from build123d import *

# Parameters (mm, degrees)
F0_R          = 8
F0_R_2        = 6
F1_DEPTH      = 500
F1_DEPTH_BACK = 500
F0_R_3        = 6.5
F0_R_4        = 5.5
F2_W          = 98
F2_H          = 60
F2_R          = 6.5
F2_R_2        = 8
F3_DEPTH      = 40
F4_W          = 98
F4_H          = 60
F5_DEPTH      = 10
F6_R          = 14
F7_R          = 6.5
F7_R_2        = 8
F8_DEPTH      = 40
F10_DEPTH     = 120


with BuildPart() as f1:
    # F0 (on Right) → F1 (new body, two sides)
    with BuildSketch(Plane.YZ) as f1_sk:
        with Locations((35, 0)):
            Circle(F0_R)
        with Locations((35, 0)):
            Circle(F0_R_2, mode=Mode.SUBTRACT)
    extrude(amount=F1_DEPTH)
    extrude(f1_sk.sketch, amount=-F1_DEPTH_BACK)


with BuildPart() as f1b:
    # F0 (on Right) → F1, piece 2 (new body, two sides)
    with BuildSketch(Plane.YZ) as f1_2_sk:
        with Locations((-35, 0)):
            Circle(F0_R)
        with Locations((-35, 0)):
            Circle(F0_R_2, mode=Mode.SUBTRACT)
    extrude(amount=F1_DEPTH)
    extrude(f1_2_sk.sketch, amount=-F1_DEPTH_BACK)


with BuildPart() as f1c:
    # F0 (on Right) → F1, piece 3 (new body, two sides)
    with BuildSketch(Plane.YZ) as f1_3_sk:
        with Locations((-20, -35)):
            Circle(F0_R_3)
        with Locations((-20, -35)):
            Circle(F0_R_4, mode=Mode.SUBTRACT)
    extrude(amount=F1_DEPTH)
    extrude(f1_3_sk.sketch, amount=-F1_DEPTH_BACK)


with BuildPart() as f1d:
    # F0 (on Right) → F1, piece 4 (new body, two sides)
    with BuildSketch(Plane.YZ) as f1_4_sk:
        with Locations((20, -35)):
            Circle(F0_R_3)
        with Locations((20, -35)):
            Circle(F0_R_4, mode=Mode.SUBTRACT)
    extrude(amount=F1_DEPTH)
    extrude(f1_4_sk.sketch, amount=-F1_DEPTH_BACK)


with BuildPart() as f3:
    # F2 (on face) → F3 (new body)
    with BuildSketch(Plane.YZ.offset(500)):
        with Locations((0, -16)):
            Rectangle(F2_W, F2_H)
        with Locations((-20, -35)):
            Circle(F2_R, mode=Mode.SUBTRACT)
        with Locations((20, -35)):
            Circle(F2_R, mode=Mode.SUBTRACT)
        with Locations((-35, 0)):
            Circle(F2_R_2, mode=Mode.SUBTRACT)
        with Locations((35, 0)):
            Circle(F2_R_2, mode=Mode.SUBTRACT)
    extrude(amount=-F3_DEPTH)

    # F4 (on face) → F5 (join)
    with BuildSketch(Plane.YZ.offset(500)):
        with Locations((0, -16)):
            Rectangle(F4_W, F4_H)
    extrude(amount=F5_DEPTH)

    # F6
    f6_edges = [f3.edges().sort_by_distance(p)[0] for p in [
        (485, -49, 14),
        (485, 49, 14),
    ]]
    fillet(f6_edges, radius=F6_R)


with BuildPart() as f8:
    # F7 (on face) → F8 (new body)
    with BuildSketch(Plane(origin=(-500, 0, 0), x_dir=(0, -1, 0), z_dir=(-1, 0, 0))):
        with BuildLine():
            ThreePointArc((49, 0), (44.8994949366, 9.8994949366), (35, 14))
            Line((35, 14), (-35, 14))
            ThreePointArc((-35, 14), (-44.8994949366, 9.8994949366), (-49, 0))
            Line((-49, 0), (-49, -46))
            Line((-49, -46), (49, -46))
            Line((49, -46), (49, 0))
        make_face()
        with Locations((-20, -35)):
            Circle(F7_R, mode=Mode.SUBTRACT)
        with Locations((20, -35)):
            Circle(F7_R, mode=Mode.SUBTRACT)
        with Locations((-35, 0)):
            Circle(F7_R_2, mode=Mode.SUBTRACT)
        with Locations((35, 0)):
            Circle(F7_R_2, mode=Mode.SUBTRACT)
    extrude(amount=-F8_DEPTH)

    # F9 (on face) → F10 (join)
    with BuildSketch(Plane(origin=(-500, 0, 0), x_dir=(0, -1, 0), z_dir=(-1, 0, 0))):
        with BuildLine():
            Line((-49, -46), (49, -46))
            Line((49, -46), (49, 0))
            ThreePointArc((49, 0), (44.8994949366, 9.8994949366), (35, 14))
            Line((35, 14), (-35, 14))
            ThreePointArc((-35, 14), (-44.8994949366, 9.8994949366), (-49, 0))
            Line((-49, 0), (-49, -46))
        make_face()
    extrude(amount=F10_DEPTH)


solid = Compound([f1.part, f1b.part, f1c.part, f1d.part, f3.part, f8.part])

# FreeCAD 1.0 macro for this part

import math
import FreeCAD as App
import Part
import Sketcher
from FreeCAD import Vector
Q = App.Units.Quantity


def edges_at(feature, points):
    """Names of the edges that pass closest to the given points."""
    edges = feature.Shape.Edges
    near = lambda p: min(range(len(edges)), key=lambda i: edges[i].distToShape(Part.Vertex(*p))[0])
    return sorted({f"Edge{near(p) + 1}" for p in points})

doc = App.newDocument("Part")
body = doc.addObject("PartDesign::Body", "Body")

# Sketch on YZ plane
sketch1 = body.newObject("Sketcher::SketchObject", "Sketch")
sketch1.AttachmentSupport = (doc.getObject("YZ_Plane"), [""])
sketch1.MapMode = "FlatFace"
sketch1.addGeometry([
    Part.Circle(Vector(35, 0, 0), Vector(0, 0, 1), 8),
    Part.Circle(Vector(35, 0, 0), Vector(0, 0, 1), 6),
], False)
sketch1.addConstraint([
    Sketcher.Constraint("Coincident", 1, 3, 0, 3),
    Sketcher.Constraint("PointOnObject", 0, 3, -1),
    Sketcher.Constraint("Diameter", 0, Q("16 mm")),
    Sketcher.Constraint("Diameter", 1, Q("12 mm")),
    Sketcher.Constraint("DistanceX", -1, 1, 0, 3, Q("35 mm")),
])
pad1 = body.newObject("PartDesign::Pad", "Pad")
pad1.Profile = sketch1
pad1.Type = "TwoLengths"
pad1.Length = 500
pad1.Length2 = 500
body2 = doc.addObject("PartDesign::Body", "Body001")

# Sketch on YZ plane
sketch2 = body2.newObject("Sketcher::SketchObject", "Sketch001")
sketch2.AttachmentSupport = (doc.getObject("YZ_Plane001"), [""])
sketch2.MapMode = "FlatFace"
sketch2.addGeometry([
    Part.Circle(Vector(-35, 0, 0), Vector(0, 0, 1), 8),
    Part.Circle(Vector(-35, 0, 0), Vector(0, 0, 1), 6),
], False)
sketch2.addConstraint([
    Sketcher.Constraint("Coincident", 1, 3, 0, 3),
    Sketcher.Constraint("PointOnObject", 0, 3, -1),
    Sketcher.Constraint("Diameter", 0, Q("16 mm")),
    Sketcher.Constraint("Diameter", 1, Q("12 mm")),
    Sketcher.Constraint("DistanceX", 0, 3, -1, 1, Q("35 mm")),
])
pad2 = body2.newObject("PartDesign::Pad", "Pad001")
pad2.Profile = sketch2
pad2.Type = "TwoLengths"
pad2.Length = 500
pad2.Length2 = 500
body3 = doc.addObject("PartDesign::Body", "Body002")

# Sketch on YZ plane
sketch3 = body3.newObject("Sketcher::SketchObject", "Sketch002")
sketch3.AttachmentSupport = (doc.getObject("YZ_Plane002"), [""])
sketch3.MapMode = "FlatFace"
sketch3.addGeometry([
    Part.Circle(Vector(-20, -35, 0), Vector(0, 0, 1), 6),
    Part.Circle(Vector(-20, -35, 0), Vector(0, 0, 1), 6),
], False)
sketch3.addConstraint([
    Sketcher.Constraint("Coincident", 1, 3, 0, 3),
    Sketcher.Constraint("Diameter", 0, Q("13 mm")),
    Sketcher.Constraint("Diameter", 1, Q("11 mm")),
    Sketcher.Constraint("DistanceX", 0, 3, -1, 1, Q("20 mm")),
    Sketcher.Constraint("DistanceY", 0, 3, -1, 1, Q("35 mm")),
])
pad3 = body3.newObject("PartDesign::Pad", "Pad002")
pad3.Profile = sketch3
pad3.Type = "TwoLengths"
pad3.Length = 500
pad3.Length2 = 500
body4 = doc.addObject("PartDesign::Body", "Body003")

# Sketch on YZ plane
sketch4 = body4.newObject("Sketcher::SketchObject", "Sketch003")
sketch4.AttachmentSupport = (doc.getObject("YZ_Plane003"), [""])
sketch4.MapMode = "FlatFace"
sketch4.addGeometry([
    Part.Circle(Vector(20, -35, 0), Vector(0, 0, 1), 6),
    Part.Circle(Vector(20, -35, 0), Vector(0, 0, 1), 6),
], False)
sketch4.addConstraint([
    Sketcher.Constraint("Coincident", 1, 3, 0, 3),
    Sketcher.Constraint("Diameter", 0, Q("13 mm")),
    Sketcher.Constraint("Diameter", 1, Q("11 mm")),
    Sketcher.Constraint("DistanceX", -1, 1, 0, 3, Q("20 mm")),
    Sketcher.Constraint("DistanceY", 0, 3, -1, 1, Q("35 mm")),
])
pad4 = body4.newObject("PartDesign::Pad", "Pad003")
pad4.Profile = sketch4
pad4.Type = "TwoLengths"
pad4.Length = 500
pad4.Length2 = 500
body5 = doc.addObject("PartDesign::Body", "Body004")

# Sketch on YZ plane
sketch5 = body5.newObject("Sketcher::SketchObject", "Sketch004")
sketch5.AttachmentSupport = (doc.getObject("YZ_Plane004"), [""])
sketch5.MapMode = "FlatFace"
sketch5.AttachmentOffset = App.Placement(Vector(0, 0, 500), App.Rotation())
sketch5.addGeometry([
    Part.LineSegment(Vector(-49, 14, 0), Vector(-49, -46, 0)),  # 0
    Part.LineSegment(Vector(-49, -46, 0), Vector(49, -46, 0)),  # 1
    Part.LineSegment(Vector(49, -46, 0), Vector(49, 14, 0)),  # 2
    Part.LineSegment(Vector(49, 14, 0), Vector(-49, 14, 0)),  # 3
    Part.Circle(Vector(-20, -35, 0), Vector(0, 0, 1), 6),  # 4
    Part.Circle(Vector(20, -35, 0), Vector(0, 0, 1), 6),  # 5
    Part.Circle(Vector(-35, 0, 0), Vector(0, 0, 1), 8),  # 6
    Part.Circle(Vector(35, 0, 0), Vector(0, 0, 1), 8),  # 7
], False)
sketch5.addConstraint([
    Sketcher.Constraint("Coincident", 0, 2, 1, 1),
    Sketcher.Constraint("Coincident", 1, 2, 2, 1),
    Sketcher.Constraint("Coincident", 2, 2, 3, 1),
    Sketcher.Constraint("Coincident", 3, 2, 0, 1),
    Sketcher.Constraint("Vertical", 0),
    Sketcher.Constraint("Horizontal", 1),
    Sketcher.Constraint("Vertical", 2),
    Sketcher.Constraint("Horizontal", 3),
    Sketcher.Constraint("Equal", 4, 5),
    Sketcher.Constraint("Equal", 6, 7),
    Sketcher.Constraint("Symmetric", 6, 3, 7, 3, -1, 1),
    Sketcher.Constraint("Symmetric", 4, 3, 5, 3, -2),
    Sketcher.Constraint("PointOnObject", 6, 3, -1),
    Sketcher.Constraint("Diameter", 4, Q("13 mm")),
    Sketcher.Constraint("Diameter", 6, Q("16 mm")),
    Sketcher.Constraint("DistanceX", 1, 1, 1, 2, Q("98 mm")),
    Sketcher.Constraint("DistanceY", 0, 2, 0, 1, Q("60 mm")),
    Sketcher.Constraint("DistanceX", 4, 3, -1, 1, Q("20 mm")),
    Sketcher.Constraint("DistanceY", 4, 3, -1, 1, Q("35 mm")),
    Sketcher.Constraint("DistanceX", 6, 3, -1, 1, Q("35 mm")),
    Sketcher.Constraint("DistanceX", 0, 2, -1, 1, Q("49 mm")),
    Sketcher.Constraint("DistanceY", 0, 2, -1, 1, Q("46 mm")),
])
pad5 = body5.newObject("PartDesign::Pad", "Pad004")
pad5.Profile = sketch5
pad5.Length = 40
pad5.Reversed = True

# Sketch on YZ plane
sketch6 = body5.newObject("Sketcher::SketchObject", "Sketch005")
sketch6.AttachmentSupport = (doc.getObject("YZ_Plane004"), [""])
sketch6.MapMode = "FlatFace"
sketch6.AttachmentOffset = App.Placement(Vector(0, 0, 500), App.Rotation())
sketch6.addGeometry([
    Part.LineSegment(Vector(-49, 14, 0), Vector(-49, -46, 0)),
    Part.LineSegment(Vector(-49, -46, 0), Vector(49, -46, 0)),
    Part.LineSegment(Vector(49, -46, 0), Vector(49, 14, 0)),
    Part.LineSegment(Vector(49, 14, 0), Vector(-49, 14, 0)),
], False)
sketch6.addConstraint([
    Sketcher.Constraint("Coincident", 0, 2, 1, 1),
    Sketcher.Constraint("Coincident", 1, 2, 2, 1),
    Sketcher.Constraint("Coincident", 2, 2, 3, 1),
    Sketcher.Constraint("Coincident", 3, 2, 0, 1),
    Sketcher.Constraint("Vertical", 0),
    Sketcher.Constraint("Horizontal", 1),
    Sketcher.Constraint("Vertical", 2),
    Sketcher.Constraint("Horizontal", 3),
    Sketcher.Constraint("DistanceX", 1, 1, 1, 2, Q("98 mm")),
    Sketcher.Constraint("DistanceY", 0, 2, 0, 1, Q("60 mm")),
    Sketcher.Constraint("DistanceX", 0, 2, -1, 1, Q("49 mm")),
    Sketcher.Constraint("DistanceY", 0, 2, -1, 1, Q("46 mm")),
])
pad6 = body5.newObject("PartDesign::Pad", "Pad005")
pad6.Profile = sketch6
pad6.Length = 10
doc.recompute()

fillet = body5.newObject("PartDesign::Fillet", "Fillet")
fillet.Base = (pad6, edges_at(pad6, [(485, -49, 14), (485, 49, 14)]))
fillet.Radius = 14
body6 = doc.addObject("PartDesign::Body", "Body005")

# Sketch on YZ plane
sketch7 = body6.newObject("Sketcher::SketchObject", "Sketch006")
sketch7.AttachmentSupport = (doc.getObject("YZ_Plane005"), [""])
sketch7.MapMode = "FlatFace"
sketch7.AttachmentOffset = App.Placement(Vector(0, 0, -500), App.Rotation())
sketch7.addGeometry([
    Part.ArcOfCircle(Part.Circle(Vector(-35, 0, 0), Vector(0, 0, 1), 14), math.radians(90), math.radians(180)),  # 0
    Part.LineSegment(Vector(-35, 14, 0), Vector(35, 14, 0)),  # 1
    Part.ArcOfCircle(Part.Circle(Vector(35, 0, 0), Vector(0, 0, 1), 14), math.radians(0), math.radians(90)),  # 2
    Part.LineSegment(Vector(49, 0, 0), Vector(49, -46, 0)),  # 3
    Part.LineSegment(Vector(49, -46, 0), Vector(-49, -46, 0)),  # 4
    Part.LineSegment(Vector(-49, -46, 0), Vector(-49, 0, 0)),  # 5
    Part.Circle(Vector(20, -35, 0), Vector(0, 0, 1), 6),  # 6
    Part.Circle(Vector(-20, -35, 0), Vector(0, 0, 1), 6),  # 7
    Part.Circle(Vector(35, 0, 0), Vector(0, 0, 1), 8),  # 8
    Part.Circle(Vector(-35, 0, 0), Vector(0, 0, 1), 8),  # 9
], False)
sketch7.addConstraint([
    Sketcher.Constraint("Tangent", 0, 1, 1, 1),
    Sketcher.Constraint("Tangent", 1, 2, 2, 2),
    Sketcher.Constraint("Tangent", 2, 1, 3, 1),
    Sketcher.Constraint("Coincident", 3, 2, 4, 1),
    Sketcher.Constraint("Coincident", 4, 2, 5, 1),
    Sketcher.Constraint("Tangent", 5, 2, 0, 2),
    Sketcher.Constraint("Horizontal", 1),
    Sketcher.Constraint("Vertical", 3),
    Sketcher.Constraint("Horizontal", 4),
    Sketcher.Constraint("Vertical", 5),
    Sketcher.Constraint("Coincident", 8, 3, 2, 3),
    Sketcher.Constraint("Coincident", 9, 3, 0, 3),
    Sketcher.Constraint("Equal", 0, 2),
    Sketcher.Constraint("Equal", 6, 7),
    Sketcher.Constraint("Equal", 8, 9),
    Sketcher.Constraint("Symmetric", 0, 3, 2, 3, -1, 1),
    Sketcher.Constraint("Symmetric", 6, 3, 7, 3, -2),
    Sketcher.Constraint("Diameter", 6, Q("13 mm")),
    Sketcher.Constraint("Diameter", 8, Q("16 mm")),
    Sketcher.Constraint("Radius", 0, Q("14 mm")),
    Sketcher.Constraint("DistanceX", 1, 1, 1, 2, Q("70 mm")),
    Sketcher.Constraint("DistanceY", 3, 2, 3, 1, Q("46 mm")),
    Sketcher.Constraint("DistanceX", -1, 1, 6, 3, Q("20 mm")),
    Sketcher.Constraint("DistanceY", 6, 3, -1, 1, Q("35 mm")),
])
pad7 = body6.newObject("PartDesign::Pad", "Pad006")
pad7.Profile = sketch7
pad7.Length = 40

# Sketch on YZ plane
sketch8 = body6.newObject("Sketcher::SketchObject", "Sketch007")
sketch8.AttachmentSupport = (doc.getObject("YZ_Plane005"), [""])
sketch8.MapMode = "FlatFace"
sketch8.AttachmentOffset = App.Placement(Vector(0, 0, -500), App.Rotation())
sketch8.addGeometry([
    Part.LineSegment(Vector(49, -46, 0), Vector(-49, -46, 0)),  # 0
    Part.LineSegment(Vector(-49, -46, 0), Vector(-49, 0, 0)),  # 1
    Part.ArcOfCircle(Part.Circle(Vector(-35, 0, 0), Vector(0, 0, 1), 14), math.radians(90), math.radians(180)),  # 2
    Part.LineSegment(Vector(-35, 14, 0), Vector(35, 14, 0)),  # 3
    Part.ArcOfCircle(Part.Circle(Vector(35, 0, 0), Vector(0, 0, 1), 14), math.radians(0), math.radians(90)),  # 4
    Part.LineSegment(Vector(49, 0, 0), Vector(49, -46, 0)),  # 5
], False)
sketch8.addConstraint([
    Sketcher.Constraint("Coincident", 0, 2, 1, 1),
    Sketcher.Constraint("Tangent", 1, 2, 2, 2),
    Sketcher.Constraint("Tangent", 2, 1, 3, 1),
    Sketcher.Constraint("Tangent", 3, 2, 4, 2),
    Sketcher.Constraint("Tangent", 4, 1, 5, 1),
    Sketcher.Constraint("Coincident", 5, 2, 0, 1),
    Sketcher.Constraint("Horizontal", 0),
    Sketcher.Constraint("Vertical", 1),
    Sketcher.Constraint("Horizontal", 3),
    Sketcher.Constraint("Vertical", 5),
    Sketcher.Constraint("Equal", 2, 4),
    Sketcher.Constraint("Symmetric", 2, 3, 4, 3, -1, 1),
    Sketcher.Constraint("Radius", 2, Q("14 mm")),
    Sketcher.Constraint("DistanceX", 0, 2, 0, 1, Q("98 mm")),
    Sketcher.Constraint("DistanceY", 1, 1, 1, 2, Q("46 mm")),
])
pad8 = body6.newObject("PartDesign::Pad", "Pad007")
pad8.Profile = sketch8
pad8.Length = 120
pad8.Reversed = True

doc.recompute()
